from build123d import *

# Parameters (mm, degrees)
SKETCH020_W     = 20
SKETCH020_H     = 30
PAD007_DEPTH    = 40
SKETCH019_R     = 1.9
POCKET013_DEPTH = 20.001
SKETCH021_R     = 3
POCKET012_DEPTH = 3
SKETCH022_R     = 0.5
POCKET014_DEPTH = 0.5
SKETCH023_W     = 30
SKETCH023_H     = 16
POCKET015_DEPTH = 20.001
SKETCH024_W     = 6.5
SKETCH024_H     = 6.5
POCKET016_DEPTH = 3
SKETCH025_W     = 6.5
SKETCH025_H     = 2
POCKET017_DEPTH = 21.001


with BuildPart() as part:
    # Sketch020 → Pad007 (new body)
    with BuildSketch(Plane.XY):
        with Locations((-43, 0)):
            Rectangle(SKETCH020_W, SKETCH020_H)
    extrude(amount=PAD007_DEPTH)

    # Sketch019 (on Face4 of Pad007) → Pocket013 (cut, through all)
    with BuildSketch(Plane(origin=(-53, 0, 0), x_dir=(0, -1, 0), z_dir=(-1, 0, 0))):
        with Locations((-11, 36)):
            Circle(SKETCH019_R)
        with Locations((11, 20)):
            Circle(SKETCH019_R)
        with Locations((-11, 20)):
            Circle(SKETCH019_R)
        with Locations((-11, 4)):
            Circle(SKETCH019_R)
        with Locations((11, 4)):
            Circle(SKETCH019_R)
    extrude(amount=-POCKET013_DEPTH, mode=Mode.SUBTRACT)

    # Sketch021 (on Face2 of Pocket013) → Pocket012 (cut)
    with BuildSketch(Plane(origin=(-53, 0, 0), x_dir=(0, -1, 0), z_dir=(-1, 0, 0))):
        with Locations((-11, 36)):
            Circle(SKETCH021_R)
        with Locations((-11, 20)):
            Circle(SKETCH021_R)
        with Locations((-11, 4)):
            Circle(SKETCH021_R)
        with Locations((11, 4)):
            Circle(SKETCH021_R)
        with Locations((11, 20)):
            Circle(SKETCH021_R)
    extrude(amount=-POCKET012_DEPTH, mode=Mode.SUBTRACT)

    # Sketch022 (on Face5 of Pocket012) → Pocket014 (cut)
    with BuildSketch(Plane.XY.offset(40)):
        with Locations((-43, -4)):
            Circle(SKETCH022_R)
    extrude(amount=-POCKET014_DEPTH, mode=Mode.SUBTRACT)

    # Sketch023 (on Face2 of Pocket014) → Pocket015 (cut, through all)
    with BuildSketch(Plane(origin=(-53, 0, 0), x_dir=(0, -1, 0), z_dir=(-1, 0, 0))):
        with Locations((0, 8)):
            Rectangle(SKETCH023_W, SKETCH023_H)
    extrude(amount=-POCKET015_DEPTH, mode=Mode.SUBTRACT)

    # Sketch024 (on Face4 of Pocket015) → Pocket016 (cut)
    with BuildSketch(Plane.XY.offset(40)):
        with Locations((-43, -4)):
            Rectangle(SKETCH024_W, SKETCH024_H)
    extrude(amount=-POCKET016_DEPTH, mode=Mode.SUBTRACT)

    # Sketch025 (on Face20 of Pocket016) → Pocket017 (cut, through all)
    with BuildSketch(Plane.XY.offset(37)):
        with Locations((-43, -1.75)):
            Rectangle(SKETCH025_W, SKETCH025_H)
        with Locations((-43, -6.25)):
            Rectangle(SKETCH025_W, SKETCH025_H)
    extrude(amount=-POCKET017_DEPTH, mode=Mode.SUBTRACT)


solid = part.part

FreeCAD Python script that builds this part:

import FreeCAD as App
import Part
import Sketcher

V = App.Vector

doc = App.newDocument("Part")
body = doc.addObject("PartDesign::Body", "Body")

# Sketch on XY plane
sketch1 = body.newObject("Sketcher::SketchObject", "Sketch")
sketch1.AttachmentSupport = (doc.getObject("XY_Plane"), [""])
sketch1.MapMode = "FlatFace"
sketch1.addGeometry([
    Part.LineSegment(V(-53, 15, 0), V(-53, -15, 0)),
    Part.LineSegment(V(-53, -15, 0), V(-33, -15, 0)),
    Part.LineSegment(V(-33, -15, 0), V(-33, 15, 0)),
    Part.LineSegment(V(-33, 15, 0), V(-53, 15, 0)),
], False)
sketch1.addConstraint([
    Sketcher.Constraint("Coincident", 0, 2, 1, 1),
    Sketcher.Constraint("Coincident", 1, 2, 2, 1),
    Sketcher.Constraint("Coincident", 2, 2, 3, 1),
    Sketcher.Constraint("Coincident", 3, 2, 0, 1),
    Sketcher.Constraint("Vertical", 0),
    Sketcher.Constraint("Horizontal", 1),
    Sketcher.Constraint("Vertical", 2),
    Sketcher.Constraint("Horizontal", 3),
    Sketcher.Constraint("DistanceX", 1, 1, 1, 2, 20.0),
    Sketcher.Constraint("DistanceY", 0, 2, 0, 1, 30.0),
    Sketcher.Constraint("DistanceX", 0, 2, -1, 1, 53.0),
    Sketcher.Constraint("DistanceY", 0, 2, -1, 1, 15.0),
])
pad1 = body.newObject("PartDesign::Pad", "Pad")
pad1.Profile = sketch1
pad1.Length = 40

# Sketch on YZ plane
sketch2 = body.newObject("Sketcher::SketchObject", "Sketch001")
sketch2.AttachmentSupport = (doc.getObject("YZ_Plane"), [""])
sketch2.MapMode = "FlatFace"
sketch2.AttachmentOffset = App.Placement(V(0, 0, -53), App.Rotation())
sketch2.addGeometry([
    Part.Circle(V(11, 36, 0), V(0, 0, 1), 1.9),  # 0
    Part.Circle(V(-11, 20, 0), V(0, 0, 1), 1.9),  # 1
    Part.Circle(V(11, 20, 0), V(0, 0, 1), 1.9),  # 2
    Part.Circle(V(11, 4, 0), V(0, 0, 1), 1.9),  # 3
    Part.Circle(V(-11, 4, 0), V(0, 0, 1), 1.9),  # 4
], False)
sketch2.addConstraint([
    Sketcher.Constraint("Equal", 0, 1),
    Sketcher.Constraint("Equal", 1, 2),
    Sketcher.Constraint("Equal", 2, 3),
    Sketcher.Constraint("Equal", 3, 4),
    Sketcher.Constraint("Symmetric", 1, 3, 2, 3, -2),
    Sketcher.Constraint("Symmetric", 3, 3, 4, 3, -2),
    Sketcher.Constraint("Vertical", 0, 3, 2, 3),
    Sketcher.Constraint("Vertical", 2, 3, 3, 3),
    Sketcher.Constraint("Diameter", 0, 3.8),
    Sketcher.Constraint("DistanceX", -1, 1, 0, 3, 11.0),
    Sketcher.Constraint("DistanceY", -1, 1, 0, 3, 36.0),
    Sketcher.Constraint("DistanceY", -1, 1, 1, 3, 20.0),
    Sketcher.Constraint("DistanceY", -1, 1, 3, 3, 4.0),
])
pocket1 = body.newObject("PartDesign::Pocket", "Pocket")
pocket1.Profile = sketch2
pocket1.Type = "ThroughAll"
pocket1.Reversed = True

# Sketch on YZ plane
sketch3 = body.newObject("Sketcher::SketchObject", "Sketch002")
sketch3.AttachmentSupport = (doc.getObject("YZ_Plane"), [""])
sketch3.MapMode = "FlatFace"
sketch3.AttachmentOffset = App.Placement(V(0, 0, -53), App.Rotation())
sketch3.addGeometry([
    Part.Circle(V(11, 36, 0), V(0, 0, 1), 3),  # 0
    Part.Circle(V(11, 20, 0), V(0, 0, 1), 3),  # 1
    Part.Circle(V(11, 4, 0), V(0, 0, 1), 3),  # 2
    Part.Circle(V(-11, 4, 0), V(0, 0, 1), 3),  # 3
    Part.Circle(V(-11, 20, 0), V(0, 0, 1), 3),  # 4
], False)
sketch3.addConstraint([
    Sketcher.Constraint("Equal", 0, 1),
    Sketcher.Constraint("Equal", 1, 2),
    Sketcher.Constraint("Equal", 2, 3),
    Sketcher.Constraint("Equal", 3, 4),
    Sketcher.Constraint("Symmetric", 2, 3, 3, 3, -2),
    Sketcher.Constraint("Symmetric", 1, 3, 4, 3, -2),
    Sketcher.Constraint("Vertical", 0, 3, 1, 3),
    Sketcher.Constraint("Vertical", 1, 3, 2, 3),
    Sketcher.Constraint("Diameter", 0, 6.0),
    Sketcher.Constraint("DistanceX", -1, 1, 0, 3, 11.0),
    Sketcher.Constraint("DistanceY", -1, 1, 0, 3, 36.0),
    Sketcher.Constraint("DistanceY", -1, 1, 1, 3, 20.0),
    Sketcher.Constraint("DistanceY", -1, 1, 2, 3, 4.0),
])
pocket2 = body.newObject("PartDesign::Pocket", "Pocket001")
pocket2.Profile = sketch3
pocket2.Length = 3
pocket2.Reversed = True

# Sketch on XY plane
sketch4 = body.newObject("Sketcher::SketchObject", "Sketch003")
sketch4.AttachmentSupport = (doc.getObject("XY_Plane"), [""])
sketch4.MapMode = "FlatFace"
sketch4.AttachmentOffset = App.Placement(V(0, 0, 40), App.Rotation())
sketch4.addGeometry(Part.Circle(V(-43, -4, 0), V(0, 0, 1), 0.5), False)
sketch4.addConstraint([
    Sketcher.Constraint("Diameter", 0, 1.0),
    Sketcher.Constraint("DistanceX", 0, 3, -1, 1, 43.0),
    Sketcher.Constraint("DistanceY", 0, 3, -1, 1, 4.0),
])
pocket3 = body.newObject("PartDesign::Pocket", "Pocket002")
pocket3.Profile = sketch4
pocket3.Length = 0.5

# Sketch on YZ plane
sketch5 = body.newObject("Sketcher::SketchObject", "Sketch004")
sketch5.AttachmentSupport = (doc.getObject("YZ_Plane"), [""])
sketch5.MapMode = "FlatFace"
sketch5.AttachmentOffset = App.Placement(V(0, 0, -53), App.Rotation())
sketch5.addGeometry([
    Part.LineSegment(V(15, 16, 0), V(15, 0, 0)),
    Part.LineSegment(V(15, 0, 0), V(-15, 0, 0)),
    Part.LineSegment(V(-15, 0, 0), V(-15, 16, 0)),
    Part.LineSegment(V(-15, 16, 0), V(15, 16, 0)),
], False)
sketch5.addConstraint([
    Sketcher.Constraint("Coincident", 0, 2, 1, 1),
    Sketcher.Constraint("Coincident", 1, 2, 2, 1),
    Sketcher.Constraint("Coincident", 2, 2, 3, 1),
    Sketcher.Constraint("Coincident", 3, 2, 0, 1),
    Sketcher.Constraint("Vertical", 0),
    Sketcher.Constraint("Horizontal", 1),
    Sketcher.Constraint("Vertical", 2),
    Sketcher.Constraint("Horizontal", 3),
    Sketcher.Constraint("Symmetric", 0, 2, 1, 2, -1, 1),
    Sketcher.Constraint("DistanceX", 1, 2, 1, 1, 30.0),
    Sketcher.Constraint("DistanceY", 0, 2, 0, 1, 16.0),
])
pocket4 = body.newObject("PartDesign::Pocket", "Pocket003")
pocket4.Profile = sketch5
pocket4.Type = "ThroughAll"
pocket4.Reversed = True

# Sketch on XY plane
sketch6 = body.newObject("Sketcher::SketchObject", "Sketch005")
sketch6.AttachmentSupport = (doc.getObject("XY_Plane"), [""])
sketch6.MapMode = "FlatFace"
sketch6.AttachmentOffset = App.Placement(V(0, 0, 40), App.Rotation())
sketch6.addGeometry([
    Part.LineSegment(V(-46.25, -0.75, 0), V(-46.25, -7.25, 0)),
    Part.LineSegment(V(-46.25, -7.25, 0), V(-39.75, -7.25, 0)),
    Part.LineSegment(V(-39.75, -7.25, 0), V(-39.75, -0.75, 0)),
    Part.LineSegment(V(-39.75, -0.75, 0), V(-46.25, -0.75, 0)),
], False)
sketch6.addConstraint([
    Sketcher.Constraint("Coincident", 0, 2, 1, 1),
    Sketcher.Constraint("Coincident", 1, 2, 2, 1),
    Sketcher.Constraint("Coincident", 2, 2, 3, 1),
    Sketcher.Constraint("Coincident", 3, 2, 0, 1),
    Sketcher.Constraint("Vertical", 0),
    Sketcher.Constraint("Horizontal", 1),
    Sketcher.Constraint("Vertical", 2),
    Sketcher.Constraint("Horizontal", 3),
    Sketcher.Constraint("Equal", 3, 0),
    Sketcher.Constraint("DistanceX", 1, 1, 1, 2, 6.5),
    Sketcher.Constraint("DistanceX", 0, 2, -1, 1, 46.25),
    Sketcher.Constraint("DistanceY", 0, 2, -1, 1, 7.25),
])
pocket5 = body.newObject("PartDesign::Pocket", "Pocket004")
pocket5.Profile = sketch6
pocket5.Length = 3

# Sketch on XY plane
sketch7 = body.newObject("Sketcher::SketchObject", "Sketch006")
sketch7.AttachmentSupport = (doc.getObject("XY_Plane"), [""])
sketch7.MapMode = "FlatFace"
sketch7.AttachmentOffset = App.Placement(V(0, 0, 37), App.Rotation())
sketch7.addGeometry([
    Part.LineSegment(V(-46.25, -0.75, 0), V(-46.25, -2.75, 0)),  # 0
    Part.LineSegment(V(-46.25, -2.75, 0), V(-39.75, -2.75, 0)),  # 1
    Part.LineSegment(V(-39.75, -2.75, 0), V(-39.75, -0.75, 0)),  # 2
    Part.LineSegment(V(-39.75, -0.75, 0), V(-46.25, -0.75, 0)),  # 3
    Part.LineSegment(V(-46.25, -5.25, 0), V(-46.25, -7.25, 0)),  # 4
    Part.LineSegment(V(-46.25, -7.25, 0), V(-39.75, -7.25, 0)),  # 5
    Part.LineSegment(V(-39.75, -7.25, 0), V(-39.75, -5.25, 0)),  # 6
    Part.LineSegment(V(-39.75, -5.25, 0), V(-46.25, -5.25, 0)),  # 7
], False)
sketch7.addConstraint([
    Sketcher.Constraint("Coincident", 0, 2, 1, 1),
    Sketcher.Constraint("Coincident", 1, 2, 2, 1),
    Sketcher.Constraint("Coincident", 2, 2, 3, 1),
    Sketcher.Constraint("Coincident", 3, 2, 0, 1),
    Sketcher.Constraint("Coincident", 4, 2, 5, 1),
    Sketcher.Constraint("Coincident", 5, 2, 6, 1),
    Sketcher.Constraint("Coincident", 6, 2, 7, 1),
    Sketcher.Constraint("Coincident", 7, 2, 4, 1),
    Sketcher.Constraint("Vertical", 0),
    Sketcher.Constraint("Horizontal", 1),
    Sketcher.Constraint("Vertical", 2),
    Sketcher.Constraint("Horizontal", 3),
    Sketcher.Constraint("Vertical", 4),
    Sketcher.Constraint("Horizontal", 5),
    Sketcher.Constraint("Vertical", 6),
    Sketcher.Constraint("Horizontal", 7),
    Sketcher.Constraint("Vertical", 3, 2, 4, 2),
    Sketcher.Constraint("Vertical", 2, 2, 5, 2),
    Sketcher.Constraint("Equal", 2, 4),
    Sketcher.Constraint("DistanceY", 0, 2, 0, 1, 2.0),
    Sketcher.Constraint("DistanceX", 1, 1, 1, 2, 6.5),
    Sketcher.Constraint("DistanceY", 4, 2, 0, 2, 4.5),
    Sketcher.Constraint("DistanceX", 0, 2, -1, 1, 46.25),
    Sketcher.Constraint("DistanceY", 0, 2, -1, 1, 2.75),
])
pocket6 = body.newObject("PartDesign::Pocket", "Pocket005")
pocket6.Profile = sketch7
pocket6.Type = "ThroughAll"

doc.recompute()
